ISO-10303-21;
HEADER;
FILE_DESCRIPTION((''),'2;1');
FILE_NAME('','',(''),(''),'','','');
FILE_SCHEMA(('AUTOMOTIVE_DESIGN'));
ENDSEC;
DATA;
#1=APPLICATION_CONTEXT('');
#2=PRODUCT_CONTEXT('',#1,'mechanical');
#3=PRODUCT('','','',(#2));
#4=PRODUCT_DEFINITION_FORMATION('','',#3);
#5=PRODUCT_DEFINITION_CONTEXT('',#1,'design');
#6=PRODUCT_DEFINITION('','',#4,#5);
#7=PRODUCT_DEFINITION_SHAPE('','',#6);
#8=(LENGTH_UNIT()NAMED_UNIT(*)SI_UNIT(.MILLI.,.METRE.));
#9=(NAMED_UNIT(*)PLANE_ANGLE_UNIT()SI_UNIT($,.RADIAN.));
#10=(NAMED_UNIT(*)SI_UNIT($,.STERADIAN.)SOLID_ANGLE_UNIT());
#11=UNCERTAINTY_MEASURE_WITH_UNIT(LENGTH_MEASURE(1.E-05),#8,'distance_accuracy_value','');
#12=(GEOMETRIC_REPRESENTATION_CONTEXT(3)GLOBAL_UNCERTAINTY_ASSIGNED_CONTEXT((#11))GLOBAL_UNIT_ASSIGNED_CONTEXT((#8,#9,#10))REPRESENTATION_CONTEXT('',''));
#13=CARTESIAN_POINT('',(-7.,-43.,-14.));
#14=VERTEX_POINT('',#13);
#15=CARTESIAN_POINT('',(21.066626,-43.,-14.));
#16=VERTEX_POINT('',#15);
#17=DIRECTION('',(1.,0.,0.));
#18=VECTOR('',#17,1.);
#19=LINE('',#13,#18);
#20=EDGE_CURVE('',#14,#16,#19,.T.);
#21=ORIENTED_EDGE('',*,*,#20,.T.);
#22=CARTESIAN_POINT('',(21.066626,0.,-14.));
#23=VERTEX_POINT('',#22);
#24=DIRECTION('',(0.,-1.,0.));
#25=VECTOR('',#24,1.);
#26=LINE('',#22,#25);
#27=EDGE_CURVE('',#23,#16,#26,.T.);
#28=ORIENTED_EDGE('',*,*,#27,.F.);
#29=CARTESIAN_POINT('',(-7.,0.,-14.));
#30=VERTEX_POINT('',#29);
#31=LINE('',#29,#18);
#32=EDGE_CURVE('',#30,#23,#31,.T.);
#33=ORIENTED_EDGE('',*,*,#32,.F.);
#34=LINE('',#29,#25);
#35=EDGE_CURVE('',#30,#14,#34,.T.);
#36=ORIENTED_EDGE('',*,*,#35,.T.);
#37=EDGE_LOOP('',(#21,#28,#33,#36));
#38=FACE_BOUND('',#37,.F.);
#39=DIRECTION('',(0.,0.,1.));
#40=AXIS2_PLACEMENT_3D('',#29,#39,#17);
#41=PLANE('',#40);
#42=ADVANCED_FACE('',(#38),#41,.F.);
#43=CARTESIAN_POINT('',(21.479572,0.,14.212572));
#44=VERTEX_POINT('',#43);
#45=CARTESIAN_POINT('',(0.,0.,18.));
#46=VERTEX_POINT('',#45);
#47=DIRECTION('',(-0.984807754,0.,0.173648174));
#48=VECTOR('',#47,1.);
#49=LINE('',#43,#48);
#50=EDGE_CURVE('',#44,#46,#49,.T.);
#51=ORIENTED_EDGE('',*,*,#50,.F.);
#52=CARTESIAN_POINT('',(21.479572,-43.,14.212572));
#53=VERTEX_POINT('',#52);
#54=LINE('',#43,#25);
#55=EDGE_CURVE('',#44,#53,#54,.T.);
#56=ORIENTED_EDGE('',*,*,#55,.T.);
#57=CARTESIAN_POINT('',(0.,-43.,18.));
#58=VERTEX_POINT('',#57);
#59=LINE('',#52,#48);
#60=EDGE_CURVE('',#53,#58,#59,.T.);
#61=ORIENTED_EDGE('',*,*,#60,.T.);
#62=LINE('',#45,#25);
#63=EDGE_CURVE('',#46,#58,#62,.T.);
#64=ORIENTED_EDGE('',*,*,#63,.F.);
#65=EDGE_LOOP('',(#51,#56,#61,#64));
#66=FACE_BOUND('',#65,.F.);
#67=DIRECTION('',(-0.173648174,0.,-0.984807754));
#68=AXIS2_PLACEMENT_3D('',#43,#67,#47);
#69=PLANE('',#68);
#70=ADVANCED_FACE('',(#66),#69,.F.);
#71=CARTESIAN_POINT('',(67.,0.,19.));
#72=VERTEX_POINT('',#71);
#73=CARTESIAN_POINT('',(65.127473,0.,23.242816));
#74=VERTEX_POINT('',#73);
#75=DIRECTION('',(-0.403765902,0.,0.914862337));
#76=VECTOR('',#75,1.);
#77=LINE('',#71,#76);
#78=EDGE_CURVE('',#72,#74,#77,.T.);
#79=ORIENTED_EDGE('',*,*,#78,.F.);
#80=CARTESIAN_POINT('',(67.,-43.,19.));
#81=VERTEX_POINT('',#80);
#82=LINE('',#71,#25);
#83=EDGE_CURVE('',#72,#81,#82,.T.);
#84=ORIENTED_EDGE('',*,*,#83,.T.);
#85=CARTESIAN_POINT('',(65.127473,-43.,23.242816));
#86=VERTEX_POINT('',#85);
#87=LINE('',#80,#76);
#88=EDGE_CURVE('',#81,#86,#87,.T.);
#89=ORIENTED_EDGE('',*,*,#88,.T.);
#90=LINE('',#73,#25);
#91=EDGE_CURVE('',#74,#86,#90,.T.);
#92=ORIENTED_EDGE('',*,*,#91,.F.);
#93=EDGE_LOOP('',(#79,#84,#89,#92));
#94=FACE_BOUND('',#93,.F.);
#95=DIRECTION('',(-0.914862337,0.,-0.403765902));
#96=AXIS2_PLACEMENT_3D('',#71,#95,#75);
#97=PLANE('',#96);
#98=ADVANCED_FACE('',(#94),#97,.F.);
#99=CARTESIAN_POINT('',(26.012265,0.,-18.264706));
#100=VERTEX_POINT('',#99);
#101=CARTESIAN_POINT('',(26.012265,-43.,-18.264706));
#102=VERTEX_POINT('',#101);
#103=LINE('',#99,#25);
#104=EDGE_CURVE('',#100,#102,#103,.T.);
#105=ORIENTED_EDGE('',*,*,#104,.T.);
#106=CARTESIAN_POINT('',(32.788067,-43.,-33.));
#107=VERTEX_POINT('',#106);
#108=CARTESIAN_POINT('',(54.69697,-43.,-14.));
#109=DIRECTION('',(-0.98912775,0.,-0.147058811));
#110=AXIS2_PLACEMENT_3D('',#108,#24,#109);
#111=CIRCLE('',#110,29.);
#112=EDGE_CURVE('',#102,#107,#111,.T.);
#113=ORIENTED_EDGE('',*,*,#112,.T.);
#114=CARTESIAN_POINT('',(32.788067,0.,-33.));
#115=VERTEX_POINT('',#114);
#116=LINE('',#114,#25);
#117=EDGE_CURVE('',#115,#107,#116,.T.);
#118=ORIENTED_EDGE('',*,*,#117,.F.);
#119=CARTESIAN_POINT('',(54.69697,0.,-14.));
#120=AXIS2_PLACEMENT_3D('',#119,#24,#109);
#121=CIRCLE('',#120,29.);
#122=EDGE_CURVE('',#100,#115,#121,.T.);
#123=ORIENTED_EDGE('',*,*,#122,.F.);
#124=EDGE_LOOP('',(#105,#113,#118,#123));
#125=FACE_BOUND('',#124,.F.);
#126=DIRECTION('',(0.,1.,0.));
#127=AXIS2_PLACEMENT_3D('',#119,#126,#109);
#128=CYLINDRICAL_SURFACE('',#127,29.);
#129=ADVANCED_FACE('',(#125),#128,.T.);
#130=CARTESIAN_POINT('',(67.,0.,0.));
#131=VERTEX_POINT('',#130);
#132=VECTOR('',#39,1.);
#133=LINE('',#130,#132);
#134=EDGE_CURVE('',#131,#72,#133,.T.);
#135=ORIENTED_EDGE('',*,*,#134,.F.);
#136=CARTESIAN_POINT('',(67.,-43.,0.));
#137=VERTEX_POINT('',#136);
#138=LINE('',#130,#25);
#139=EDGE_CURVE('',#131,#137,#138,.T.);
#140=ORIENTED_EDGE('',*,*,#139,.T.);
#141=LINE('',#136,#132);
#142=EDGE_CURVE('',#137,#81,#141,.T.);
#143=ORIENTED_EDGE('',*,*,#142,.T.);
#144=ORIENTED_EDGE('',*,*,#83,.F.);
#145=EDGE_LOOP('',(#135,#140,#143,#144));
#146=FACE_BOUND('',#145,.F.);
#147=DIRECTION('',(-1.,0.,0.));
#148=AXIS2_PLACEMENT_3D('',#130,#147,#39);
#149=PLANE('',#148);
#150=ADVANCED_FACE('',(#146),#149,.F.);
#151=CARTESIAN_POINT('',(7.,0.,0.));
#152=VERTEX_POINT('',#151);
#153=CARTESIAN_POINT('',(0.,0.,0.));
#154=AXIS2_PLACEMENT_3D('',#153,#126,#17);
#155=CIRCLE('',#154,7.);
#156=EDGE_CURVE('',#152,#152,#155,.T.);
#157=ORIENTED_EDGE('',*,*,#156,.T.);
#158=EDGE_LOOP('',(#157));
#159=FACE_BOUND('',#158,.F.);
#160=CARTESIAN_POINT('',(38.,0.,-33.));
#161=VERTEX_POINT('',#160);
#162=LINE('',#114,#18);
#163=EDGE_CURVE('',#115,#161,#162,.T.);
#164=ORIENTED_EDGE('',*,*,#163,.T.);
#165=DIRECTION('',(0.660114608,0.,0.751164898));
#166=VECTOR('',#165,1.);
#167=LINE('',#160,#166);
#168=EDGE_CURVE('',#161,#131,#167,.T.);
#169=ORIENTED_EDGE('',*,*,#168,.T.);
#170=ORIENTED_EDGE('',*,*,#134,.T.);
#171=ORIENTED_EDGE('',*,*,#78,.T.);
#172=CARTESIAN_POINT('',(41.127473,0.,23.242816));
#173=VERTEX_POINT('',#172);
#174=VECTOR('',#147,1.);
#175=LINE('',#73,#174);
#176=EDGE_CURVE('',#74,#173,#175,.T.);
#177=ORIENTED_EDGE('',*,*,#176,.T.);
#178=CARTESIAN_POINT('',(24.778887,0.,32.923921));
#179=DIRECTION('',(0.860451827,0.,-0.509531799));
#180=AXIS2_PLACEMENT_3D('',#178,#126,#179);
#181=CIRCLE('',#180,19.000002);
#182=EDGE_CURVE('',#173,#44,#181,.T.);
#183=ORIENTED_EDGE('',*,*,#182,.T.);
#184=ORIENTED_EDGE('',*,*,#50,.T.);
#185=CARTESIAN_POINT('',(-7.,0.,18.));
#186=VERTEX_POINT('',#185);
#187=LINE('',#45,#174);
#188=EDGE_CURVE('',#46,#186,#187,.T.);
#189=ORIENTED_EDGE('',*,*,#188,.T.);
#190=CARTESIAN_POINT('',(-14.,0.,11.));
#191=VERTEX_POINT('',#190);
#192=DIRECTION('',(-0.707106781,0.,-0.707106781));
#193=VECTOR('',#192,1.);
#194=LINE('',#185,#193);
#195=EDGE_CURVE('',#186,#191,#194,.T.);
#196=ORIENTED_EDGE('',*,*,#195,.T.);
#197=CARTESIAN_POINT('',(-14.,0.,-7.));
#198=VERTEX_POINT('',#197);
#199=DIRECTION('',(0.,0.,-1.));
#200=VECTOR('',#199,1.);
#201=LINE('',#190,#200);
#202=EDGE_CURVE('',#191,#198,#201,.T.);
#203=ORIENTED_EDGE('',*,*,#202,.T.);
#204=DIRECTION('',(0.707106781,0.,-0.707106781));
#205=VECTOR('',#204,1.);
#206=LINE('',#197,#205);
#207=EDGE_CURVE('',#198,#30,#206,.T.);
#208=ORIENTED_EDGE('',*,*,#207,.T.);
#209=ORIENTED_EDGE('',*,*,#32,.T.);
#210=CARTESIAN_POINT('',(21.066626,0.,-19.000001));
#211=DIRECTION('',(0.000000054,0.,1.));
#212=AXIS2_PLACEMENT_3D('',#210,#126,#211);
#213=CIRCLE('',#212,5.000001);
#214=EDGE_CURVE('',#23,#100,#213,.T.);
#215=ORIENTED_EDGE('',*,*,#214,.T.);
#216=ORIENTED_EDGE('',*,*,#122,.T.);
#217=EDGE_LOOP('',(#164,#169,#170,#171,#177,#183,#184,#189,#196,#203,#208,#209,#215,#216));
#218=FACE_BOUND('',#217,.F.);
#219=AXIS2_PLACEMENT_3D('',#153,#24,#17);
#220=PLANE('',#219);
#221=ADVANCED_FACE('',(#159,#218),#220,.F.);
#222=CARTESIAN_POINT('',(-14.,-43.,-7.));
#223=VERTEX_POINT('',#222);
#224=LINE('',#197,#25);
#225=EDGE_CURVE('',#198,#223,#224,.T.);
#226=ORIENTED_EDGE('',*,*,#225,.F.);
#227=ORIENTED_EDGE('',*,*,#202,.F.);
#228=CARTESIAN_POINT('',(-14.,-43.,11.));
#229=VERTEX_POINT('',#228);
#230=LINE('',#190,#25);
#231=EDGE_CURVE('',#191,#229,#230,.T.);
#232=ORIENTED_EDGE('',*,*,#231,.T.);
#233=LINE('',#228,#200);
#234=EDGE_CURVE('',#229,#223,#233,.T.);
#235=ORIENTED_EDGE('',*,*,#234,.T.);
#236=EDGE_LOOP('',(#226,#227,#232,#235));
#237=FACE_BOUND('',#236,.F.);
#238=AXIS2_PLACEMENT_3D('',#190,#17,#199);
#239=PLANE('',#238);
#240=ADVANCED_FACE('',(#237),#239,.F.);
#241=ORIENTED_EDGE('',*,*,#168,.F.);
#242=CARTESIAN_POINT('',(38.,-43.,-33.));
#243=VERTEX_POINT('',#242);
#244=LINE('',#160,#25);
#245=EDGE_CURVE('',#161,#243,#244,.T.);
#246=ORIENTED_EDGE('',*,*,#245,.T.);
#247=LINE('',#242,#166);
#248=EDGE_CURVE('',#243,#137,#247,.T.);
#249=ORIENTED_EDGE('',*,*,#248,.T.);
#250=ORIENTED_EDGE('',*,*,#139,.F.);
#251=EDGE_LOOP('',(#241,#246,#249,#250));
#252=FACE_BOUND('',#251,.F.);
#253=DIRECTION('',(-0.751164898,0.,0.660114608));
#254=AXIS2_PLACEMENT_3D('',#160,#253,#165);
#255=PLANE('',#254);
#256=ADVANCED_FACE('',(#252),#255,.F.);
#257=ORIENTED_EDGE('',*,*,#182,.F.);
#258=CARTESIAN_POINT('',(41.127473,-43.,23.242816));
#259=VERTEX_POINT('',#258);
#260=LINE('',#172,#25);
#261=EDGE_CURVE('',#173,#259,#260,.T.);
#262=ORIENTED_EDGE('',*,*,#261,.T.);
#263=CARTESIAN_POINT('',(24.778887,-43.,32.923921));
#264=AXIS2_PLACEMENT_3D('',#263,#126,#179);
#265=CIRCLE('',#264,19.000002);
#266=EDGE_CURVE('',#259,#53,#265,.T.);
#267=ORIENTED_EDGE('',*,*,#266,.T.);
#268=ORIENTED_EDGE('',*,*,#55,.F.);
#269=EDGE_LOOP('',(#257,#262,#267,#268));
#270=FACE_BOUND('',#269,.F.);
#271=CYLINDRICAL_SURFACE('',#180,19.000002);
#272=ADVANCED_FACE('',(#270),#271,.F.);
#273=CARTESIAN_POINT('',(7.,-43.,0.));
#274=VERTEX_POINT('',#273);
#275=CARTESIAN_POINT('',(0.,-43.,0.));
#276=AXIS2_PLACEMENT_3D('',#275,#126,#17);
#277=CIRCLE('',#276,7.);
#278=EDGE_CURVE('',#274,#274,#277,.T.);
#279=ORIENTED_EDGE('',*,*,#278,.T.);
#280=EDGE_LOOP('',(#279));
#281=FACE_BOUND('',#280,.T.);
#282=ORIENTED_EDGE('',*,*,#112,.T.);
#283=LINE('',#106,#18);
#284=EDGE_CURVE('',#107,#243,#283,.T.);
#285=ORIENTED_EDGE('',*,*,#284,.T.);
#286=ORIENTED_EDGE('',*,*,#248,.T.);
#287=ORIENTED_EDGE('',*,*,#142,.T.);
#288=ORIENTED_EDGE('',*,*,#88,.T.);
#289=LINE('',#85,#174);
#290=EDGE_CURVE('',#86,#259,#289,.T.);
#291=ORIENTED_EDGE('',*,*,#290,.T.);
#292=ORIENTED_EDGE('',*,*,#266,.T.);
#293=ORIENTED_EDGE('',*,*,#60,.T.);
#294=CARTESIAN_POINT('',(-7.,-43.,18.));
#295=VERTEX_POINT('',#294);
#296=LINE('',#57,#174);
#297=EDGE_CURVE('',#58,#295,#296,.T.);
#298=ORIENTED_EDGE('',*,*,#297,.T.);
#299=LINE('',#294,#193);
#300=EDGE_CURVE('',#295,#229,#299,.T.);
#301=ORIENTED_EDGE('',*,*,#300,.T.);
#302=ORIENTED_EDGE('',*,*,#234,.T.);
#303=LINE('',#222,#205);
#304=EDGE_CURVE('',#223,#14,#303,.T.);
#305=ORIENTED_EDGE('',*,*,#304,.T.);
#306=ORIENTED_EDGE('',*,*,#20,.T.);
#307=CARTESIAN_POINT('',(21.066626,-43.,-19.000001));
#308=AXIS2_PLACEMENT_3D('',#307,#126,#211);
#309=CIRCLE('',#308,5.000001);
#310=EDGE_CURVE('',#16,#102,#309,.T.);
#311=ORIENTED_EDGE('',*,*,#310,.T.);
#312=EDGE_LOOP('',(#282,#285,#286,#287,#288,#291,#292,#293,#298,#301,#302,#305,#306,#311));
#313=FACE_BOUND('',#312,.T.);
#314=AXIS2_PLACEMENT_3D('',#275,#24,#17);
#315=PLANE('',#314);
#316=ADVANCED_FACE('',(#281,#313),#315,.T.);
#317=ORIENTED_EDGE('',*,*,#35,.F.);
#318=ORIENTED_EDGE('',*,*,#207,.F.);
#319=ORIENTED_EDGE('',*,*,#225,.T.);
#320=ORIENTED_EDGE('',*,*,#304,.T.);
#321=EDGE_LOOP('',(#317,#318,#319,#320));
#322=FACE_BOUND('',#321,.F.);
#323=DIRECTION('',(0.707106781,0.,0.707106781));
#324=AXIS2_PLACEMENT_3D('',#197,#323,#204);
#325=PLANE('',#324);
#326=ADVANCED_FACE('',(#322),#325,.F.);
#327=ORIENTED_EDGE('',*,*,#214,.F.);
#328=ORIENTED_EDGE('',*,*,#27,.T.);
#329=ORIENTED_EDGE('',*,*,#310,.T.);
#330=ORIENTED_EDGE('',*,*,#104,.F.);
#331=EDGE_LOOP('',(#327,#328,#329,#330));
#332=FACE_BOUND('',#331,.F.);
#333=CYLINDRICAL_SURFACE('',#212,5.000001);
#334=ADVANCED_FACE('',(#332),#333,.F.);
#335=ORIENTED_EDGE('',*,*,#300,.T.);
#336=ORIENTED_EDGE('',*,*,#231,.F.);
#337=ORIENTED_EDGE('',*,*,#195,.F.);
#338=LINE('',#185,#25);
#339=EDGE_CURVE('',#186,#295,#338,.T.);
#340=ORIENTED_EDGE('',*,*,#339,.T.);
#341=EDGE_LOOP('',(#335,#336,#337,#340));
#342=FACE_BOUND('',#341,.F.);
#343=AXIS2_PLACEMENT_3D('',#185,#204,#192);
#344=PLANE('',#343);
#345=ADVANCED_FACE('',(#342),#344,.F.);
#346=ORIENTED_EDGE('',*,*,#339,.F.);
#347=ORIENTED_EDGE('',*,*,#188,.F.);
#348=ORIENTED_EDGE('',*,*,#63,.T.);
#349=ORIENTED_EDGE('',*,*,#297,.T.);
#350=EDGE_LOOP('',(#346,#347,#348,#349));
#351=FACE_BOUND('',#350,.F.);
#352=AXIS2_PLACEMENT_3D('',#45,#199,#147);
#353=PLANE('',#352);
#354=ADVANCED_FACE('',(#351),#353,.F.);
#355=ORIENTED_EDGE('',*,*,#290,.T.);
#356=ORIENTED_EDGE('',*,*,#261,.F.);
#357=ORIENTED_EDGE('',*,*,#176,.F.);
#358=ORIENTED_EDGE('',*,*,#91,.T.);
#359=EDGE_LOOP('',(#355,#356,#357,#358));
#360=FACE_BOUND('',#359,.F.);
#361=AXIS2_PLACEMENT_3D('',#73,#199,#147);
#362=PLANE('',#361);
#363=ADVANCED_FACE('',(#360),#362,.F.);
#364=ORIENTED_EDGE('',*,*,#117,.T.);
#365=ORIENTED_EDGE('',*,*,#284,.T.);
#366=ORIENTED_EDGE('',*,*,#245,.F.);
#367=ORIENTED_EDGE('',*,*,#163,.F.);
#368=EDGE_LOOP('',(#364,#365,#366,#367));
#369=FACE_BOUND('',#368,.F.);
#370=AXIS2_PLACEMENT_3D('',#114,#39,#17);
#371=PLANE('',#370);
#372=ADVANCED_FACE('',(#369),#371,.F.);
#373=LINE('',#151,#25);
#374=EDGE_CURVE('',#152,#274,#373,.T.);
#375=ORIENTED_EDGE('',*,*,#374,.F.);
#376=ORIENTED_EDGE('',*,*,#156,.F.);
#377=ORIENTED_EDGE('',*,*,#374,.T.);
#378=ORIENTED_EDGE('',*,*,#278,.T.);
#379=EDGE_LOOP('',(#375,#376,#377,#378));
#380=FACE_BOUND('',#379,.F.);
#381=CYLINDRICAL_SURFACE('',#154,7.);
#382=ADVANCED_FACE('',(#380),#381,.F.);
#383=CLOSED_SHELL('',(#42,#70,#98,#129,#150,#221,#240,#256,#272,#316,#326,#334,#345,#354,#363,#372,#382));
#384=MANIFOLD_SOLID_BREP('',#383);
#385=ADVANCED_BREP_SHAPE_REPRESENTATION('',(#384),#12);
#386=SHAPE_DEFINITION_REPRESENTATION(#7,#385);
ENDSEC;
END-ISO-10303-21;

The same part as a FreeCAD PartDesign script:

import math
import FreeCAD as App
import Part
import Sketcher

V = App.Vector
Q = App.Units.Quantity

doc = App.newDocument("Part")
body = doc.addObject("PartDesign::Body", "Body")

sketch1 = body.newObject("Sketcher::SketchObject", "Sketch")
sketch1.AttachmentSupport = (doc.getObject("XZ_Plane"), [""])
sketch1.MapMode = "FlatFace"
sketch1.addGeometry([
    Part.LineSegment(V(-14, 11, 0), V(-14, -7, 0)),
    Part.LineSegment(V(-14, -7, 0), V(-7, -14, 0)),
    Part.LineSegment(V(-7, -14, 0), V(21.066626, -14, 0)),
    Part.ArcOfCircle(Part.Circle(V(21.066626, -19.000001, 0), V(0, 0, 1), 5.000001), math.radians(8.456524), math.radians(89.999997)),
    Part.ArcOfCircle(Part.Circle(V(54.69697, -14, 0), V(0, 0, 1), 29), math.radians(-171.543481), math.radians(-139.067277)),
    Part.LineSegment(V(32.788067, -33, 0), V(38, -33, 0)),
    Part.LineSegment(V(38, -33, 0), V(67, 0, 0)),
    Part.LineSegment(V(67, 0, 0), V(67, 19, 0)),
    Part.LineSegment(V(67, 19, 0), V(65.127473, 23.242816, 0)),
    Part.LineSegment(V(65.127473, 23.242816, 0), V(41.127473, 23.242816, 0)),
    Part.ArcOfCircle(Part.Circle(V(24.778887, 32.923921, 0), V(0, 0, 1), 19.000002), math.radians(-99.999998), math.radians(-30.632648)),
    Part.LineSegment(V(21.479572, 14.212572, 0), V(0, 18, 0)),
    Part.LineSegment(V(0, 18, 0), V(-7, 18, 0)),
    Part.LineSegment(V(-7, 18, 0), V(-14, 11, 0)),
    Part.Circle(V(0, 0, 0), V(0, 0, 1), 7),
], False)
sketch1.addConstraint([
    Sketcher.Constraint("Coincident", 0, 2, 1, 1),
    Sketcher.Constraint("Coincident", 1, 2, 2, 1),
    Sketcher.Constraint("Tangent", 2, 2, 3, 2),
    Sketcher.Constraint("Tangent", 3, 1, 4, 1),
    Sketcher.Constraint("Coincident", 4, 2, 5, 1),
    Sketcher.Constraint("Coincident", 5, 2, 6, 1),
    Sketcher.Constraint("Coincident", 6, 2, 7, 1),
    Sketcher.Constraint("Coincident", 7, 2, 8, 1),
    Sketcher.Constraint("Coincident", 8, 2, 9, 1),
    Sketcher.Constraint("Coincident", 9, 2, 10, 2),
    Sketcher.Constraint("Tangent", 10, 1, 11, 1),
    Sketcher.Constraint("Coincident", 11, 2, 12, 1),
    Sketcher.Constraint("Coincident", 12, 2, 13, 1),
    Sketcher.Constraint("Coincident", 13, 2, 0, 1),
    Sketcher.Constraint("Vertical", 0),
    Sketcher.Constraint("Horizontal", 2),
    Sketcher.Constraint("Horizontal", 5),
    Sketcher.Constraint("Vertical", 7),
    Sketcher.Constraint("Horizontal", 9),
    Sketcher.Constraint("Horizontal", 12),
    Sketcher.Constraint("Coincident", 14, 3, -1, 1),
    Sketcher.Constraint("PointOnObject", 6, 2, -1),
    Sketcher.Constraint("PointOnObject", 11, 2, -2),
    Sketcher.Constraint("Perpendicular", 1, 13),
    Sketcher.Constraint("Horizontal", 4, 3, 1, 2),
    Sketcher.Constraint("Vertical", 1, 2, 12, 2),
    Sketcher.Constraint("Equal", 1, 13),
    Sketcher.Constraint("Diameter", 14, 14.0),
    Sketcher.Constraint("Radius", 3, 5.000001),
    Sketcher.Constraint("Radius", 4, 29.0),
    Sketcher.Constraint("Radius", 10, 19.000002),
    Sketcher.Constraint("DistanceX", 9, 2, 9, 1, 24.0),
    Sketcher.Constraint("DistanceX", 12, 2, 12, 1, 7.0),
    Sketcher.Constraint("DistanceY", 0, 2, 0, 1, 18.0),
    Sketcher.Constraint("DistanceY", 7, 1, 7, 2, 19.0),
    Sketcher.Constraint("Angle", 11, Q("170 deg")),
    Sketcher.Constraint("DistanceY", 3, 3, -1, 1, 19.000001),
    Sketcher.Constraint("DistanceX", 0, 2, -1, 1, 14.0),
    Sketcher.Constraint("DistanceY", 4, 2, -1, 1, 33.0),
    Sketcher.Constraint("DistanceX", -1, 1, 5, 2, 38.0),
    Sketcher.Constraint("DistanceX", -1, 1, 6, 2, 67.0),
    Sketcher.Constraint("DistanceX", 10, 1, 9, 2, 19.647901),
    Sketcher.Constraint("Distance", 11, 21.810929),
    Sketcher.Constraint("DistanceX", 2, 1, 2, 2, 28.066626),
])
pad1 = body.newObject("PartDesign::Pad", "Pad")
pad1.Profile = sketch1
pad1.Length = 43

doc.recompute()
